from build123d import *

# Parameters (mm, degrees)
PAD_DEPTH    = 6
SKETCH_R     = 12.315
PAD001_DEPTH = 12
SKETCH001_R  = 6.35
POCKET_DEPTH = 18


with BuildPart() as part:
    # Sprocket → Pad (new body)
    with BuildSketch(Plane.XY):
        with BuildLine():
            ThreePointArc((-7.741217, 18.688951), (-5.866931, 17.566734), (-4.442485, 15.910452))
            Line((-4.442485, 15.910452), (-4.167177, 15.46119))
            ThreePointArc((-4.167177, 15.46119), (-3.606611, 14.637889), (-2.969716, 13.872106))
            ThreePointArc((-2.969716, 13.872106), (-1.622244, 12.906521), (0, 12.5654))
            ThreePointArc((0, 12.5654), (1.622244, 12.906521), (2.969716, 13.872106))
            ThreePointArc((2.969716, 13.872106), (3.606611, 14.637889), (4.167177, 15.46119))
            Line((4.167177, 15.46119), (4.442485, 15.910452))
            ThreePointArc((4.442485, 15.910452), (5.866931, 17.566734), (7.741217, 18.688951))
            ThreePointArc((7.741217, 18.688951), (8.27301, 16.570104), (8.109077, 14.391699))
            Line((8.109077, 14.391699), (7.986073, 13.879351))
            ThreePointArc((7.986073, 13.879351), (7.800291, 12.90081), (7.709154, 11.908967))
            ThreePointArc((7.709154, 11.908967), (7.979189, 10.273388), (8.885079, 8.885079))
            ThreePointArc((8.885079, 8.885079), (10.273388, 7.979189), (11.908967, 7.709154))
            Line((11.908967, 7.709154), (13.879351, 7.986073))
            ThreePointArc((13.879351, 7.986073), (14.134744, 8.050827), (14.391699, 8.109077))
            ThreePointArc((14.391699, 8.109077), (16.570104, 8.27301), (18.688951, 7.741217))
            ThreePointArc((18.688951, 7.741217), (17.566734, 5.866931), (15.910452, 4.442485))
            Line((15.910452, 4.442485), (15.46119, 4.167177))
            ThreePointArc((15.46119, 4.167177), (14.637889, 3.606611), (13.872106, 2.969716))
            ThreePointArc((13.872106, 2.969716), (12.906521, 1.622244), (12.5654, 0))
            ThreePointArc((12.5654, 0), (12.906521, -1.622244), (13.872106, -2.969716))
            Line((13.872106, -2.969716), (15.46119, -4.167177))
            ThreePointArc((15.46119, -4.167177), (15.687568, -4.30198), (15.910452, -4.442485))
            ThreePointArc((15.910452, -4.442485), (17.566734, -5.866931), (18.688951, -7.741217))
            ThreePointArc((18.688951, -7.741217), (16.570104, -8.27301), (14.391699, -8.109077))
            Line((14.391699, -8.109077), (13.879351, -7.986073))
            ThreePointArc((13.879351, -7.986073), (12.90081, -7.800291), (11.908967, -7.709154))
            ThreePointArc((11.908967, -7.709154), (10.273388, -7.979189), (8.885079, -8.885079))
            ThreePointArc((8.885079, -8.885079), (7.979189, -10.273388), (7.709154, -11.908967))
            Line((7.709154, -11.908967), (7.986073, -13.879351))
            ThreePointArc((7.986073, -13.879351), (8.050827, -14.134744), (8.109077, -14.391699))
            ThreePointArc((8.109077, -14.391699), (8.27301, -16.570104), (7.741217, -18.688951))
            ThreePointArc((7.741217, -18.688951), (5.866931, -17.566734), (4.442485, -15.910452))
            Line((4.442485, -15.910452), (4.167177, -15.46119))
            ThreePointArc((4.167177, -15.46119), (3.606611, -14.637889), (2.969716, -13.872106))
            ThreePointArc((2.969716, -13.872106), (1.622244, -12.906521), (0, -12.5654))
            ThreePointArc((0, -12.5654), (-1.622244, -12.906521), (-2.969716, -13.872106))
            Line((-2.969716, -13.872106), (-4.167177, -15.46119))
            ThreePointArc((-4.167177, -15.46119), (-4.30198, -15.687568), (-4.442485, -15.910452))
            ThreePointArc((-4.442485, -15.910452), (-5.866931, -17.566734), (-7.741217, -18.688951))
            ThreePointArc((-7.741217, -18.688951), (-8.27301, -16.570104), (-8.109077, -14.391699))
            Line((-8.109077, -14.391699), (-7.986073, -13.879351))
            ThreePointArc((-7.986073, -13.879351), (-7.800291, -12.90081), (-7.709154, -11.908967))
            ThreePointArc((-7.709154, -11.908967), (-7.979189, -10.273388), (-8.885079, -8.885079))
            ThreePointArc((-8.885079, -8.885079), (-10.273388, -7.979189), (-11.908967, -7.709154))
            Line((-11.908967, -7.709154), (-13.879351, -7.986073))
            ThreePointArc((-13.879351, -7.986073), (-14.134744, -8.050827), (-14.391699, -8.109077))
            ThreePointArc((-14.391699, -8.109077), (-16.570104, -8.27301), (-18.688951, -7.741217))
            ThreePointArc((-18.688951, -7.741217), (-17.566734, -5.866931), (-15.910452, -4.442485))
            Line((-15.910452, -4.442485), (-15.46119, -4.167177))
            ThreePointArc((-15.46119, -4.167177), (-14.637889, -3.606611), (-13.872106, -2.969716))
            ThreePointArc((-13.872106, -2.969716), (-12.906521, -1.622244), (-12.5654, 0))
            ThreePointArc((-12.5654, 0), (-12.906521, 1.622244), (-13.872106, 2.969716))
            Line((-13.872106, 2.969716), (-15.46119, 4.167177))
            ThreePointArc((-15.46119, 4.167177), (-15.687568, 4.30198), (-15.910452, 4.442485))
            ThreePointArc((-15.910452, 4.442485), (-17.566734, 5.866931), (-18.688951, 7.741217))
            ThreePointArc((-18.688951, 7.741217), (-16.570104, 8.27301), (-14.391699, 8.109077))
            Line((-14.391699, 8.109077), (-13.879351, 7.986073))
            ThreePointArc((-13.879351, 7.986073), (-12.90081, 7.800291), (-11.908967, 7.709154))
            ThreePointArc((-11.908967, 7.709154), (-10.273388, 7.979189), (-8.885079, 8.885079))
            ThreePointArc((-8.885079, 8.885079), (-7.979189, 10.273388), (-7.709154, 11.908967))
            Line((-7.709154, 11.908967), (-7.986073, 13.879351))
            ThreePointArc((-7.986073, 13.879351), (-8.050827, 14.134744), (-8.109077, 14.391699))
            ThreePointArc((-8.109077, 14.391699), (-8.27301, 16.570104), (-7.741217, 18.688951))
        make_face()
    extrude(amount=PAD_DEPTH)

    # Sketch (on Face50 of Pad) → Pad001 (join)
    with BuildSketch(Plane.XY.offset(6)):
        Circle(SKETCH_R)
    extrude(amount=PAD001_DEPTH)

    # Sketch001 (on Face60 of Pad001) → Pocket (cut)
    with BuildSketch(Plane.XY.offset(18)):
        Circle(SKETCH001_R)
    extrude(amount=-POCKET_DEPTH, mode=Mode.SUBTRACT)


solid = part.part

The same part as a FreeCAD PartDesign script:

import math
import FreeCAD as App
import Part
import Sketcher

V = App.Vector
Q = App.Units.Quantity

doc = App.newDocument("Part")
params = doc.addObject("Spreadsheet::Sheet", "Params")
for row, (alias, value) in enumerate([
    ("pad1_length", "6 mm"),
    ("sketch2_diameter", "24.63 mm"),
    ("pad2_length", "12 mm"),
    ("sketch3_diameter", "12.7 mm"),
    ("pocket1_length", "18 mm"),
], start=1):
    params.set(f"A{row}", alias)
    params.set(f"B{row}", "=" + value)
    params.setAlias(f"B{row}", alias)

body = doc.addObject("PartDesign::Body", "Body")

# Sketch on XY plane
sketch1 = body.newObject("Sketcher::SketchObject", "Sketch")
sketch1.AttachmentSupport = (doc.getObject("XY_Plane"), [""])
sketch1.MapMode = "FlatFace"
sketch1.addGeometry([
    Part.ArcOfCircle(Part.Circle(V(-10.3, 12.3, 0), V(0, 0, 1), 6.8), math.radians(31), math.radians(68)),  # 0
    Part.ArcOfCircle(Part.Circle(V(-1.5, 16, 0), V(0, 0, 1), 6.8), math.radians(157), math.radians(194)),  # 1
    Part.ArcOfCircle(Part.Circle(V(2, 16.6, 0), V(0, 0, 1), 10.4), math.radians(-167.95), math.radians(-165.05)),  # 2
    Part.LineSegment(V(-8, 13.9, 0), V(-7.7, 11.9, 0)),  # 3
    Part.ArcOfCircle(Part.Circle(V(-11.7, 11.7, 0), V(0, 0, 1), 4), math.radians(-45), math.radians(2)),  # 4
    Part.ArcOfCircle(Part.Circle(V(-11.7, 11.7, 0), V(0, 0, 1), 4), math.radians(-92), math.radians(-45)),  # 5
    Part.ArcOfCircle(Part.Circle(V(-11.5, 18.1, 0), V(0, 0, 1), 10.4), math.radians(-103.5), math.radians(-92.5)),  # 6
    Part.LineSegment(V(-13.9, 8, 0), V(-14.4, 8.1, 0)),  # 7
    Part.ArcOfCircle(Part.Circle(V(-16, 1.5, 0), V(0, 0, 1), 6.8), math.radians(76), math.radians(113)),  # 8
    Part.ArcOfCircle(Part.Circle(V(-12.3, 10.3, 0), V(0, 0, 1), 6.8), math.radians(-158), math.radians(-121)),  # 9
    Part.ArcOfCircle(Part.Circle(V(-10.3, 13.2, 0), V(0, 0, 1), 10.4), math.radians(-122.95), math.radians(-120.05)),  # 10
    Part.LineSegment(V(-15.5, 4.2, 0), V(-13.9, 3, 0)),  # 11
    Part.ArcOfCircle(Part.Circle(V(-16.6, 0, 0), V(0, 0, 1), 4), math.radians(0), math.radians(48)),  # 12
    Part.ArcOfCircle(Part.Circle(V(-16.6, 0, 0), V(0, 0, 1), 4), math.radians(-48), math.radians(0)),  # 13
    Part.ArcOfCircle(Part.Circle(V(-20.9, 4.7, 0), V(0, 0, 1), 10.4), math.radians(-58.5), math.radians(-47.5)),  # 14
    Part.LineSegment(V(-15.5, -4.2, 0), V(-15.9, -4.4, 0)),  # 15
    Part.ArcOfCircle(Part.Circle(V(-12.3, -10.3, 0), V(0, 0, 1), 6.8), math.radians(121), math.radians(158)),  # 16
    Part.ArcOfCircle(Part.Circle(V(-16, -1.5, 0), V(0, 0, 1), 6.8), math.radians(-113), math.radians(-76)),  # 17
    Part.ArcOfCircle(Part.Circle(V(-16.6, 2, 0), V(0, 0, 1), 10.4), math.radians(-77.95), math.radians(-75.05)),  # 18
    Part.LineSegment(V(-13.9, -8, 0), V(-11.9, -7.7, 0)),  # 19
    Part.ArcOfCircle(Part.Circle(V(-11.7, -11.7, 0), V(0, 0, 1), 4), math.radians(45), math.radians(92)),  # 20
    Part.ArcOfCircle(Part.Circle(V(-11.7, -11.7, 0), V(0, 0, 1), 4), math.radians(-2), math.radians(45)),  # 21
    Part.ArcOfCircle(Part.Circle(V(-18.1, -11.5, 0), V(0, 0, 1), 10.4), math.radians(-13.5), math.radians(-2.5)),  # 22
    Part.LineSegment(V(-8, -13.9, 0), V(-8.1, -14.4, 0)),  # 23
    Part.ArcOfCircle(Part.Circle(V(-1.5, -16, 0), V(0, 0, 1), 6.8), math.radians(166), math.radians(203)),  # 24
    Part.ArcOfCircle(Part.Circle(V(-10.3, -12.3, 0), V(0, 0, 1), 6.8), math.radians(-68), math.radians(-31)),  # 25
    Part.ArcOfCircle(Part.Circle(V(-13.2, -10.3, 0), V(0, 0, 1), 10.4), math.radians(-32.95), math.radians(-30.05)),  # 26
    Part.LineSegment(V(-4.2, -15.5, 0), V(-3, -13.9, 0)),  # 27
    Part.ArcOfCircle(Part.Circle(V(0, -16.6, 0), V(0, 0, 1), 4), math.radians(90), math.radians(138)),  # 28
    Part.ArcOfCircle(Part.Circle(V(0, -16.6, 0), V(0, 0, 1), 4), math.radians(42), math.radians(90)),  # 29
    Part.ArcOfCircle(Part.Circle(V(-4.7, -20.9, 0), V(0, 0, 1), 10.4), math.radians(31.5), math.radians(42.5)),  # 30
    Part.LineSegment(V(4.2, -15.5, 0), V(4.4, -15.9, 0)),  # 31
    Part.ArcOfCircle(Part.Circle(V(10.3, -12.3, 0), V(0, 0, 1), 6.8), math.radians(-149), math.radians(-112)),  # 32
    Part.ArcOfCircle(Part.Circle(V(1.5, -16, 0), V(0, 0, 1), 6.8), math.radians(-23), math.radians(14)),  # 33
    Part.ArcOfCircle(Part.Circle(V(-2, -16.6, 0), V(0, 0, 1), 10.4), math.radians(12.05), math.radians(14.95)),  # 34
    Part.LineSegment(V(8, -13.9, 0), V(7.7, -11.9, 0)),  # 35
    Part.ArcOfCircle(Part.Circle(V(11.7, -11.7, 0), V(0, 0, 1), 4), math.radians(135), math.radians(182)),  # 36
    Part.ArcOfCircle(Part.Circle(V(11.7, -11.7, 0), V(0, 0, 1), 4), math.radians(88), math.radians(135)),  # 37
    Part.ArcOfCircle(Part.Circle(V(11.5, -18.1, 0), V(0, 0, 1), 10.4), math.radians(76.5), math.radians(87.5)),  # 38
    Part.LineSegment(V(13.9, -8, 0), V(14.4, -8.1, 0)),  # 39
    Part.ArcOfCircle(Part.Circle(V(16, -1.5, 0), V(0, 0, 1), 6.8), math.radians(-104), math.radians(-67)),  # 40
    Part.ArcOfCircle(Part.Circle(V(12.3, -10.3, 0), V(0, 0, 1), 6.8), math.radians(22), math.radians(59)),  # 41
    Part.ArcOfCircle(Part.Circle(V(10.3, -13.2, 0), V(0, 0, 1), 10.4), math.radians(57.05), math.radians(59.95)),  # 42
    Part.LineSegment(V(15.5, -4.2, 0), V(13.9, -3, 0)),  # 43
    Part.ArcOfCircle(Part.Circle(V(16.6, 0, 0), V(0, 0, 1), 4), math.radians(180), math.radians(228)),  # 44
    Part.ArcOfCircle(Part.Circle(V(16.6, 0, 0), V(0, 0, 1), 4), math.radians(132), math.radians(180)),  # 45
    Part.ArcOfCircle(Part.Circle(V(20.9, -4.7, 0), V(0, 0, 1), 10.4), math.radians(121.5), math.radians(132.5)),  # 46
    Part.LineSegment(V(15.5, 4.2, 0), V(15.9, 4.4, 0)),  # 47
    Part.ArcOfCircle(Part.Circle(V(12.3, 10.3, 0), V(0, 0, 1), 6.8), math.radians(-59), math.radians(-22)),  # 48
    Part.ArcOfCircle(Part.Circle(V(16, 1.5, 0), V(0, 0, 1), 6.8), math.radians(67), math.radians(104)),  # 49
    Part.ArcOfCircle(Part.Circle(V(16.6, -2, 0), V(0, 0, 1), 10.4), math.radians(102.05), math.radians(104.95)),  # 50
    Part.LineSegment(V(13.9, 8, 0), V(11.9, 7.7, 0)),  # 51
    Part.ArcOfCircle(Part.Circle(V(11.7, 11.7, 0), V(0, 0, 1), 4), math.radians(-135), math.radians(-88)),  # 52
    Part.ArcOfCircle(Part.Circle(V(11.7, 11.7, 0), V(0, 0, 1), 4), math.radians(178), math.radians(225)),  # 53
    Part.ArcOfCircle(Part.Circle(V(18.1, 11.5, 0), V(0, 0, 1), 10.4), math.radians(166.5), math.radians(177.5)),  # 54
    Part.LineSegment(V(8, 13.9, 0), V(8.1, 14.4, 0)),  # 55
    Part.ArcOfCircle(Part.Circle(V(1.5, 16, 0), V(0, 0, 1), 6.8), math.radians(-14), math.radians(23)),  # 56
    Part.ArcOfCircle(Part.Circle(V(10.3, 12.3, 0), V(0, 0, 1), 6.8), math.radians(112), math.radians(149)),  # 57
    Part.LineSegment(V(4.4, 15.9, 0), V(4.2, 15.5, 0)),  # 58
    Part.ArcOfCircle(Part.Circle(V(-4.7, 20.9, 0), V(0, 0, 1), 10.4), math.radians(-42.5), math.radians(-31.5)),  # 59
    Part.ArcOfCircle(Part.Circle(V(0, 16.6, 0), V(0, 0, 1), 4), math.radians(-90), math.radians(-42)),  # 60
    Part.ArcOfCircle(Part.Circle(V(0, 16.6, 0), V(0, 0, 1), 4), math.radians(-138), math.radians(-90)),  # 61
    Part.ArcOfCircle(Part.Circle(V(4.7, 20.9, 0), V(0, 0, 1), 10.4), math.radians(-148.5), math.radians(-137.5)),  # 62
    Part.LineSegment(V(-4.2, 15.5, 0), V(-4.4, 15.9, 0)),  # 63
], False)
sketch1.addConstraint([
    Sketcher.Constraint("Coincident", 0, 2, 1, 1),
    Sketcher.Constraint("Coincident", 1, 2, 2, 1),
    Sketcher.Constraint("Coincident", 2, 2, 3, 1),
    Sketcher.Constraint("Coincident", 3, 2, 4, 2),
    Sketcher.Constraint("Tangent", 4, 1, 5, 2),
    Sketcher.Constraint("Tangent", 5, 1, 6, 2),
    Sketcher.Constraint("Tangent", 6, 1, 7, 1),
    Sketcher.Constraint("Tangent", 7, 2, 8, 1),
    Sketcher.Constraint("Coincident", 8, 2, 9, 1),
    Sketcher.Constraint("Coincident", 9, 2, 10, 1),
    Sketcher.Constraint("Coincident", 10, 2, 11, 1),
    Sketcher.Constraint("Coincident", 11, 2, 12, 2),
    Sketcher.Constraint("Tangent", 12, 1, 13, 2),
    Sketcher.Constraint("Tangent", 13, 1, 14, 2),
    Sketcher.Constraint("Tangent", 14, 1, 15, 1),
    Sketcher.Constraint("Tangent", 15, 2, 16, 1),
    Sketcher.Constraint("Coincident", 16, 2, 17, 1),
    Sketcher.Constraint("Coincident", 17, 2, 18, 1),
    Sketcher.Constraint("Coincident", 18, 2, 19, 1),
    Sketcher.Constraint("Coincident", 19, 2, 20, 2),
    Sketcher.Constraint("Tangent", 20, 1, 21, 2),
    Sketcher.Constraint("Tangent", 21, 1, 22, 2),
    Sketcher.Constraint("Tangent", 22, 1, 23, 1),
    Sketcher.Constraint("Tangent", 23, 2, 24, 1),
    Sketcher.Constraint("Coincident", 24, 2, 25, 1),
    Sketcher.Constraint("Coincident", 25, 2, 26, 1),
    Sketcher.Constraint("Coincident", 26, 2, 27, 1),
    Sketcher.Constraint("Coincident", 27, 2, 28, 2),
    Sketcher.Constraint("Tangent", 28, 1, 29, 2),
    Sketcher.Constraint("Tangent", 29, 1, 30, 2),
    Sketcher.Constraint("Tangent", 30, 1, 31, 1),
    Sketcher.Constraint("Tangent", 31, 2, 32, 1),
    Sketcher.Constraint("Coincident", 32, 2, 33, 1),
    Sketcher.Constraint("Coincident", 33, 2, 34, 1),
    Sketcher.Constraint("Coincident", 34, 2, 35, 1),
    Sketcher.Constraint("Coincident", 35, 2, 36, 2),
    Sketcher.Constraint("Tangent", 36, 1, 37, 2),
    Sketcher.Constraint("Tangent", 37, 1, 38, 2),
    Sketcher.Constraint("Tangent", 38, 1, 39, 1),
    Sketcher.Constraint("Tangent", 39, 2, 40, 1),
    Sketcher.Constraint("Coincident", 40, 2, 41, 1),
    Sketcher.Constraint("Coincident", 41, 2, 42, 1),
    Sketcher.Constraint("Coincident", 42, 2, 43, 1),
    Sketcher.Constraint("Coincident", 43, 2, 44, 2),
    Sketcher.Constraint("Tangent", 44, 1, 45, 2),
    Sketcher.Constraint("Tangent", 45, 1, 46, 2),
    Sketcher.Constraint("Tangent", 46, 1, 47, 1),
    Sketcher.Constraint("Tangent", 47, 2, 48, 1),
    Sketcher.Constraint("Coincident", 48, 2, 49, 1),
    Sketcher.Constraint("Coincident", 49, 2, 50, 1),
    Sketcher.Constraint("Coincident", 50, 2, 51, 1),
    Sketcher.Constraint("Coincident", 51, 2, 52, 2),
    Sketcher.Constraint("Tangent", 52, 1, 53, 2),
    Sketcher.Constraint("Tangent", 53, 1, 54, 2),
    Sketcher.Constraint("Tangent", 54, 1, 55, 1),
    Sketcher.Constraint("Tangent", 55, 2, 56, 1),
    Sketcher.Constraint("Coincident", 56, 2, 57, 1),
    Sketcher.Constraint("Tangent", 57, 2, 58, 1),
    Sketcher.Constraint("Tangent", 58, 2, 59, 2),
    Sketcher.Constraint("Tangent", 59, 1, 60, 2),
    Sketcher.Constraint("Tangent", 60, 1, 61, 2),
    Sketcher.Constraint("Tangent", 61, 1, 62, 2),
    Sketcher.Constraint("Tangent", 62, 1, 63, 1),
    Sketcher.Constraint("Tangent", 63, 2, 0, 1),
    Sketcher.Constraint("Equal", 0, 1),
    Sketcher.Constraint("Equal", 4, 5),
    Sketcher.Constraint("Equal", 1, 8),
    Sketcher.Constraint("Equal", 8, 9),
    Sketcher.Constraint("Equal", 12, 13),
    Sketcher.Constraint("Equal", 9, 16),
    Sketcher.Constraint("Equal", 16, 17),
    Sketcher.Constraint("Equal", 2, 18),
    Sketcher.Constraint("Equal", 5, 20),
    Sketcher.Constraint("Equal", 20, 21),
    Sketcher.Constraint("Equal", 6, 22),
    Sketcher.Constraint("Equal", 17, 24),
    Sketcher.Constraint("Equal", 24, 25),
    Sketcher.Constraint("Equal", 10, 26),
    Sketcher.Constraint("Equal", 13, 28),
    Sketcher.Constraint("Equal", 28, 29),
    Sketcher.Constraint("Equal", 14, 30),
    Sketcher.Constraint("Equal", 25, 32),
    Sketcher.Constraint("Equal", 32, 33),
    Sketcher.Constraint("Equal", 18, 34),
    Sketcher.Constraint("Equal", 21, 36),
    Sketcher.Constraint("Equal", 36, 37),
    Sketcher.Constraint("Equal", 22, 38),
    Sketcher.Constraint("Equal", 33, 40),
    Sketcher.Constraint("Equal", 40, 41),
    Sketcher.Constraint("Equal", 26, 42),
    Sketcher.Constraint("Equal", 29, 44),
    Sketcher.Constraint("Equal", 44, 45),
    Sketcher.Constraint("Equal", 30, 46),
    Sketcher.Constraint("Equal", 41, 48),
    Sketcher.Constraint("Equal", 48, 49),
    Sketcher.Constraint("Equal", 34, 50),
    Sketcher.Constraint("Equal", 37, 52),
    Sketcher.Constraint("Equal", 52, 53),
    Sketcher.Constraint("Equal", 38, 54),
    Sketcher.Constraint("Equal", 49, 56),
    Sketcher.Constraint("Equal", 56, 57),
    Sketcher.Constraint("Equal", 46, 59),
    Sketcher.Constraint("Equal", 45, 60),
    Sketcher.Constraint("Equal", 60, 61),
    Sketcher.Constraint("Equal", 59, 62),
    Sketcher.Constraint("Symmetric", 0, 3, 32, 3, -1, 1),
    Sketcher.Constraint("Symmetric", 1, 3, 33, 3, -1, 1),
    Sketcher.Constraint("Symmetric", 2, 3, 34, 3, -1, 1),
    Sketcher.Constraint("Symmetric", 4, 3, 36, 3, -1, 1),
    Sketcher.Constraint("Symmetric", 8, 3, 40, 3, -1, 1),
    Sketcher.Constraint("Symmetric", 9, 3, 41, 3, -1, 1),
    Sketcher.Constraint("Symmetric", 10, 3, 42, 3, -1, 1),
    Sketcher.Constraint("Symmetric", 12, 3, 44, 3, -1, 1),
    Sketcher.Constraint("Symmetric", 16, 3, 48, 3, -1, 1),
    Sketcher.Constraint("Symmetric", 17, 3, 49, 3, -1, 1),
    Sketcher.Constraint("Symmetric", 18, 3, 50, 3, -1, 1),
    Sketcher.Constraint("Symmetric", 20, 3, 52, 3, -1, 1),
    Sketcher.Constraint("Symmetric", 24, 3, 56, 3, -1, 1),
    Sketcher.Constraint("Symmetric", 25, 3, 57, 3, -1, 1),
    Sketcher.Constraint("Symmetric", 28, 3, 60, 3, -1, 1),
    Sketcher.Constraint("Symmetric", 26, 2, 58, 2, -1, 1),
    Sketcher.Constraint("Symmetric", 25, 3, 32, 3, -2),
    Sketcher.Constraint("Symmetric", 24, 3, 33, 3, -2),
    Sketcher.Constraint("Symmetric", 20, 3, 36, 3, -2),
    Sketcher.Constraint("Symmetric", 17, 3, 40, 3, -2),
    Sketcher.Constraint("Symmetric", 16, 3, 41, 3, -2),
    Sketcher.Constraint("Symmetric", 59, 3, 62, 3, -2),
    Sketcher.Constraint("Symmetric", 22, 1, 34, 2, -2),
    Sketcher.Constraint("Symmetric", 18, 2, 38, 1, -2),
    Sketcher.Constraint("Symmetric", 14, 1, 42, 2, -2),
    Sketcher.Constraint("Symmetric", 13, 1, 43, 2, -2),
    Sketcher.Constraint("Symmetric", 10, 2, 46, 1, -2),
    Sketcher.Constraint("Symmetric", 6, 1, 50, 2, -2),
    Sketcher.Constraint("Symmetric", 2, 2, 54, 1, -2),
    Sketcher.Constraint("PointOnObject", 12, 1, -1),
    Sketcher.Constraint("PointOnObject", 28, 1, -2),
    Sketcher.Constraint("PointOnObject", 44, 1, -1),
    Sketcher.Constraint("PointOnObject", 60, 1, -2),
    Sketcher.Constraint("Perpendicular", 3, 19),
    Sketcher.Constraint("Perpendicular", 7, 23),
    Sketcher.Constraint("Perpendicular", 11, 27),
    Sketcher.Constraint("Perpendicular", 15, 31),
    Sketcher.Constraint("Perpendicular", 19, 35),
    Sketcher.Constraint("Perpendicular", 27, 43),
    Sketcher.Constraint("Perpendicular", 35, 51),
    Sketcher.Constraint("Perpendicular", 47, 63),
    Sketcher.Constraint("Horizontal", 27, 2, 29, 1),
    Sketcher.Constraint("Horizontal", 25, 2, 31, 2),
    Sketcher.Constraint("Horizontal", 23, 2, 33, 2),
    Sketcher.Constraint("Horizontal", 21, 1, 35, 2),
    Sketcher.Constraint("Horizontal", 20, 1, 36, 1),
    Sketcher.Constraint("Horizontal", 19, 2, 37, 1),
    Sketcher.Constraint("Horizontal", 17, 2, 39, 2),
    Sketcher.Constraint("Horizontal", 15, 2, 41, 2),
    Sketcher.Constraint("Horizontal", 4, 1, 52, 1),
    Sketcher.Constraint("Vertical", 4, 1, 20, 1),
    Sketcher.Constraint("Equal", 3, 11),
    Sketcher.Constraint("Equal", 7, 15),
    Sketcher.Constraint("Equal", 15, 23),
    Sketcher.Constraint("Equal", 23, 31),
    Sketcher.Constraint("Angle", 3, Q("-82.000012 deg")),
    Sketcher.Constraint("Angle", 11, Q("-37.000007 deg")),
    Sketcher.Constraint("Angle", 7, Q("166.499986 deg")),
    Sketcher.Constraint("Radius", 14, Q("10.37998 mm")),
    Sketcher.Constraint("Radius", 0, Q("6.834485 mm")),
    Sketcher.Constraint("Radius", 2, Q("10.378153 mm")),
    Sketcher.Constraint("Radius", 4, Q("4.027953 mm")),
    Sketcher.Constraint("Radius", 6, Q("10.379868 mm")),
    Sketcher.Constraint("Radius", 10, Q("10.380606 mm")),
    Sketcher.Constraint("Radius", 12, Q("4.027947 mm")),
    Sketcher.Constraint("DistanceY", -1, 1, 1, 2, Q("14.391699 mm")),
    Sketcher.Constraint("DistanceX", 7, 2, -1, 1, Q("14.391699 mm")),
    Sketcher.Constraint("DistanceX", 12, 1, -1, 1, Q("12.5654 mm")),
    Sketcher.Constraint("DistanceY", 28, 1, -1, 1, Q("12.5654 mm")),
    Sketcher.Constraint("DistanceX", 0, 3, -1, 1, Q("10.269841 mm")),
    Sketcher.Constraint("DistanceX", 4, 1, -1, 1, Q("8.885079 mm")),
])
pad1 = body.newObject("PartDesign::Pad", "Pad")
pad1.Profile = sketch1
pad1.setExpression("Length", "Params.pad1_length")

# Sketch on XY plane
sketch2 = body.newObject("Sketcher::SketchObject", "Sketch001")
sketch2.AttachmentSupport = (doc.getObject("XY_Plane"), [""])
sketch2.MapMode = "FlatFace"
sketch2.AttachmentOffset = App.Placement(V(0, 0, 6), App.Rotation())
sketch2.addGeometry(Part.Circle(V(0, 0, 0), V(0, 0, 1), 12), False)
sketch2.addConstraint([
    Sketcher.Constraint("Coincident", 0, 3, -1, 1),
    Sketcher.Constraint("Diameter", 0, Q("24.63 mm")),
])
sketch2.setExpression("Constraints[1]", "Params.sketch2_diameter")
pad2 = body.newObject("PartDesign::Pad", "Pad001")
pad2.Profile = sketch2
pad2.setExpression("Length", "Params.pad2_length")

# Sketch on XY plane
sketch3 = body.newObject("Sketcher::SketchObject", "Sketch002")
sketch3.AttachmentSupport = (doc.getObject("XY_Plane"), [""])
sketch3.MapMode = "FlatFace"
sketch3.AttachmentOffset = App.Placement(V(0, 0, 18), App.Rotation())
sketch3.addGeometry(Part.Circle(V(0, 0, 0), V(0, 0, 1), 6), False)
sketch3.addConstraint([
    Sketcher.Constraint("Coincident", 0, 3, -1, 1),
    Sketcher.Constraint("Diameter", 0, Q("12.7 mm")),
])
sketch3.setExpression("Constraints[1]", "Params.sketch3_diameter")
pocket1 = body.newObject("PartDesign::Pocket", "Pocket")
pocket1.Profile = sketch3
pocket1.setExpression("Length", "Params.pocket1_length")

doc.recompute()
